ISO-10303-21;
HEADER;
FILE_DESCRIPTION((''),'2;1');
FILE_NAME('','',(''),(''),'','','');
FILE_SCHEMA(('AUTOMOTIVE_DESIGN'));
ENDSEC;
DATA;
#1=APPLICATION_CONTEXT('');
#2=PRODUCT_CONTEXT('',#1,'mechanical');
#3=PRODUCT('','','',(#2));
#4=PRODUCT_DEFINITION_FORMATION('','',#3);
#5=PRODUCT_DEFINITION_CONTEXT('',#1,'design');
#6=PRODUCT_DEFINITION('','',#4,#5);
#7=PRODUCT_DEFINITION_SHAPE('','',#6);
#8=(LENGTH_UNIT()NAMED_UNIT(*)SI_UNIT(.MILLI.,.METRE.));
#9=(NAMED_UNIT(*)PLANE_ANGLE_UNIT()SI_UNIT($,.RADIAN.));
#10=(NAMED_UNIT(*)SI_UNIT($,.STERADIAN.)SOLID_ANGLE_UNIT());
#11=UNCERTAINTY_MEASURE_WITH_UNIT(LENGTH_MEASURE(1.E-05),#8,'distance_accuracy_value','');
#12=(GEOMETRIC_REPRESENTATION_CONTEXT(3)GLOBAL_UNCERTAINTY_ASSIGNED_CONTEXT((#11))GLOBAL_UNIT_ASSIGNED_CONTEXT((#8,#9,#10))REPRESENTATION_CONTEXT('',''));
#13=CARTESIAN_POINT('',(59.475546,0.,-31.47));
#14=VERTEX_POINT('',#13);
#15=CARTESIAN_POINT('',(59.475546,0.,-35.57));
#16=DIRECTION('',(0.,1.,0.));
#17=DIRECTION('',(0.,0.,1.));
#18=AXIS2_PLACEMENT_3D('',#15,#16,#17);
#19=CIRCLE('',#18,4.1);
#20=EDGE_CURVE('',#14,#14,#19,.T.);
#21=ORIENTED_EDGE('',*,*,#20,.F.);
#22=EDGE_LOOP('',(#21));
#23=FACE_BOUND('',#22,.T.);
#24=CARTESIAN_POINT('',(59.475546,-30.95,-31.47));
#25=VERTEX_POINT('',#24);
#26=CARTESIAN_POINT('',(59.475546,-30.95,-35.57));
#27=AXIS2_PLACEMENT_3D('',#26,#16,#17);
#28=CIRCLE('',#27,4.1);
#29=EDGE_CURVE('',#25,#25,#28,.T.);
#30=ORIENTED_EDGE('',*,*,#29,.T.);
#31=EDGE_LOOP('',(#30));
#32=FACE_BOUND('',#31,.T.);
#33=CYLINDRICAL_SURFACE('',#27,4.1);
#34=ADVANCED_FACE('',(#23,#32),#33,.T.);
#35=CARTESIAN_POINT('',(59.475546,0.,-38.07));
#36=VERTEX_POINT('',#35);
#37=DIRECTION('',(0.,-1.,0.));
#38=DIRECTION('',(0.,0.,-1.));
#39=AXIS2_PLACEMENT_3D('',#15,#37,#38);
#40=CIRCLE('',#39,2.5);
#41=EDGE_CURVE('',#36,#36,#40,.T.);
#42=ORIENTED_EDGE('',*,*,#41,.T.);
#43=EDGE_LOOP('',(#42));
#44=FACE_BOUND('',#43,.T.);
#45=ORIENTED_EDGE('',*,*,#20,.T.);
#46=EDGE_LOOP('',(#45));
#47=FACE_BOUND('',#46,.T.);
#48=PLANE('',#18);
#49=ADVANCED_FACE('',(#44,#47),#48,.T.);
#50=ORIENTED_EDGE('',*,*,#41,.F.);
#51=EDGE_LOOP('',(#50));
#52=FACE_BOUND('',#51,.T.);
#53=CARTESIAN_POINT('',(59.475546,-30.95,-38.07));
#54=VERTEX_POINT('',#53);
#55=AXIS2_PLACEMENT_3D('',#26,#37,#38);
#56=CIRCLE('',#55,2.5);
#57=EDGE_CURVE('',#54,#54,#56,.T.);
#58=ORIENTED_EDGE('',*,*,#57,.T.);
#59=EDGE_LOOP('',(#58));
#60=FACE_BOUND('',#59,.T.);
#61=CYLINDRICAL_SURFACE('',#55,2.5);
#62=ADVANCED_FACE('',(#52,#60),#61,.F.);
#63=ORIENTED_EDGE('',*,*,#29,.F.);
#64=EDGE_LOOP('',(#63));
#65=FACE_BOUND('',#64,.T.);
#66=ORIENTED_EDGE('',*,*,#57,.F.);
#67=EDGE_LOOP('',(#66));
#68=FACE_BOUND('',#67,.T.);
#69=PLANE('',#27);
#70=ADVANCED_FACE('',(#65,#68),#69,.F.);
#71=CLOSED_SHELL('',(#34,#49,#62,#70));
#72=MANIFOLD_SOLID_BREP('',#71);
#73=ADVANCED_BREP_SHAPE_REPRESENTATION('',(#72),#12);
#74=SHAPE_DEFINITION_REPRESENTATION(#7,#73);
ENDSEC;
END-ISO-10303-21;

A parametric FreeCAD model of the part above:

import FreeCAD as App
import Part
import Sketcher
from FreeCAD import Vector
Q = App.Units.Quantity

doc = App.newDocument("Part")
body = doc.addObject("PartDesign::Body", "Body")

# Sketch on XZ plane
sketch1 = doc.addObject("Sketcher::SketchObject", "Sketch")
body.addObject(sketch1)
sketch1.AttachmentSupport = (doc.XZ_Plane, [""])
sketch1.MapMode = "FlatFace"
sketch1.addGeometry(Part.Circle(Vector(59.475546, -35.57, 0), Vector(0, 0, 1), 4.1), False)
sketch1.addConstraint(Sketcher.Constraint("Diameter", 0, Q("8.2 mm")))
sketch1.addConstraint(Sketcher.Constraint("DistanceY", 0, 3, -1, 1, Q("35.57 mm")))
sketch1.addConstraint(Sketcher.Constraint("DistanceX", -1, 1, 0, 3, Q("59.475546 mm")))
pad1 = doc.addObject("PartDesign::Pad", "Pad")
body.addObject(pad1)
pad1.Profile = sketch1
pad1.Length = 30.95

# Sketch on XZ plane
sketch2 = doc.addObject("Sketcher::SketchObject", "Sketch001")
body.addObject(sketch2)
sketch2.AttachmentSupport = (doc.XZ_Plane, [""])
sketch2.MapMode = "FlatFace"
sketch2.AttachmentOffset = App.Placement(Vector(0, 0, 30.95), App.Rotation())
sketch2.addGeometry(Part.Circle(Vector(59.475546, -35.57, 0), Vector(0, 0, 1), 2.5), False)
sketch2.addConstraint(Sketcher.Constraint("Diameter", 0, Q("5 mm")))
sketch2.addConstraint(Sketcher.Constraint("DistanceY", 0, 3, -1, 1, Q("35.57 mm")))
sketch2.addConstraint(Sketcher.Constraint("DistanceX", -1, 1, 0, 3, Q("59.475546 mm")))
doc.recompute()
hole = doc.addObject("PartDesign::Hole", "Hole")
body.addObject(hole)
hole.Profile = sketch2
hole.ThreadType = "None"
hole.Diameter = 5
hole.DepthType = "ThroughAll"

doc.recompute()
